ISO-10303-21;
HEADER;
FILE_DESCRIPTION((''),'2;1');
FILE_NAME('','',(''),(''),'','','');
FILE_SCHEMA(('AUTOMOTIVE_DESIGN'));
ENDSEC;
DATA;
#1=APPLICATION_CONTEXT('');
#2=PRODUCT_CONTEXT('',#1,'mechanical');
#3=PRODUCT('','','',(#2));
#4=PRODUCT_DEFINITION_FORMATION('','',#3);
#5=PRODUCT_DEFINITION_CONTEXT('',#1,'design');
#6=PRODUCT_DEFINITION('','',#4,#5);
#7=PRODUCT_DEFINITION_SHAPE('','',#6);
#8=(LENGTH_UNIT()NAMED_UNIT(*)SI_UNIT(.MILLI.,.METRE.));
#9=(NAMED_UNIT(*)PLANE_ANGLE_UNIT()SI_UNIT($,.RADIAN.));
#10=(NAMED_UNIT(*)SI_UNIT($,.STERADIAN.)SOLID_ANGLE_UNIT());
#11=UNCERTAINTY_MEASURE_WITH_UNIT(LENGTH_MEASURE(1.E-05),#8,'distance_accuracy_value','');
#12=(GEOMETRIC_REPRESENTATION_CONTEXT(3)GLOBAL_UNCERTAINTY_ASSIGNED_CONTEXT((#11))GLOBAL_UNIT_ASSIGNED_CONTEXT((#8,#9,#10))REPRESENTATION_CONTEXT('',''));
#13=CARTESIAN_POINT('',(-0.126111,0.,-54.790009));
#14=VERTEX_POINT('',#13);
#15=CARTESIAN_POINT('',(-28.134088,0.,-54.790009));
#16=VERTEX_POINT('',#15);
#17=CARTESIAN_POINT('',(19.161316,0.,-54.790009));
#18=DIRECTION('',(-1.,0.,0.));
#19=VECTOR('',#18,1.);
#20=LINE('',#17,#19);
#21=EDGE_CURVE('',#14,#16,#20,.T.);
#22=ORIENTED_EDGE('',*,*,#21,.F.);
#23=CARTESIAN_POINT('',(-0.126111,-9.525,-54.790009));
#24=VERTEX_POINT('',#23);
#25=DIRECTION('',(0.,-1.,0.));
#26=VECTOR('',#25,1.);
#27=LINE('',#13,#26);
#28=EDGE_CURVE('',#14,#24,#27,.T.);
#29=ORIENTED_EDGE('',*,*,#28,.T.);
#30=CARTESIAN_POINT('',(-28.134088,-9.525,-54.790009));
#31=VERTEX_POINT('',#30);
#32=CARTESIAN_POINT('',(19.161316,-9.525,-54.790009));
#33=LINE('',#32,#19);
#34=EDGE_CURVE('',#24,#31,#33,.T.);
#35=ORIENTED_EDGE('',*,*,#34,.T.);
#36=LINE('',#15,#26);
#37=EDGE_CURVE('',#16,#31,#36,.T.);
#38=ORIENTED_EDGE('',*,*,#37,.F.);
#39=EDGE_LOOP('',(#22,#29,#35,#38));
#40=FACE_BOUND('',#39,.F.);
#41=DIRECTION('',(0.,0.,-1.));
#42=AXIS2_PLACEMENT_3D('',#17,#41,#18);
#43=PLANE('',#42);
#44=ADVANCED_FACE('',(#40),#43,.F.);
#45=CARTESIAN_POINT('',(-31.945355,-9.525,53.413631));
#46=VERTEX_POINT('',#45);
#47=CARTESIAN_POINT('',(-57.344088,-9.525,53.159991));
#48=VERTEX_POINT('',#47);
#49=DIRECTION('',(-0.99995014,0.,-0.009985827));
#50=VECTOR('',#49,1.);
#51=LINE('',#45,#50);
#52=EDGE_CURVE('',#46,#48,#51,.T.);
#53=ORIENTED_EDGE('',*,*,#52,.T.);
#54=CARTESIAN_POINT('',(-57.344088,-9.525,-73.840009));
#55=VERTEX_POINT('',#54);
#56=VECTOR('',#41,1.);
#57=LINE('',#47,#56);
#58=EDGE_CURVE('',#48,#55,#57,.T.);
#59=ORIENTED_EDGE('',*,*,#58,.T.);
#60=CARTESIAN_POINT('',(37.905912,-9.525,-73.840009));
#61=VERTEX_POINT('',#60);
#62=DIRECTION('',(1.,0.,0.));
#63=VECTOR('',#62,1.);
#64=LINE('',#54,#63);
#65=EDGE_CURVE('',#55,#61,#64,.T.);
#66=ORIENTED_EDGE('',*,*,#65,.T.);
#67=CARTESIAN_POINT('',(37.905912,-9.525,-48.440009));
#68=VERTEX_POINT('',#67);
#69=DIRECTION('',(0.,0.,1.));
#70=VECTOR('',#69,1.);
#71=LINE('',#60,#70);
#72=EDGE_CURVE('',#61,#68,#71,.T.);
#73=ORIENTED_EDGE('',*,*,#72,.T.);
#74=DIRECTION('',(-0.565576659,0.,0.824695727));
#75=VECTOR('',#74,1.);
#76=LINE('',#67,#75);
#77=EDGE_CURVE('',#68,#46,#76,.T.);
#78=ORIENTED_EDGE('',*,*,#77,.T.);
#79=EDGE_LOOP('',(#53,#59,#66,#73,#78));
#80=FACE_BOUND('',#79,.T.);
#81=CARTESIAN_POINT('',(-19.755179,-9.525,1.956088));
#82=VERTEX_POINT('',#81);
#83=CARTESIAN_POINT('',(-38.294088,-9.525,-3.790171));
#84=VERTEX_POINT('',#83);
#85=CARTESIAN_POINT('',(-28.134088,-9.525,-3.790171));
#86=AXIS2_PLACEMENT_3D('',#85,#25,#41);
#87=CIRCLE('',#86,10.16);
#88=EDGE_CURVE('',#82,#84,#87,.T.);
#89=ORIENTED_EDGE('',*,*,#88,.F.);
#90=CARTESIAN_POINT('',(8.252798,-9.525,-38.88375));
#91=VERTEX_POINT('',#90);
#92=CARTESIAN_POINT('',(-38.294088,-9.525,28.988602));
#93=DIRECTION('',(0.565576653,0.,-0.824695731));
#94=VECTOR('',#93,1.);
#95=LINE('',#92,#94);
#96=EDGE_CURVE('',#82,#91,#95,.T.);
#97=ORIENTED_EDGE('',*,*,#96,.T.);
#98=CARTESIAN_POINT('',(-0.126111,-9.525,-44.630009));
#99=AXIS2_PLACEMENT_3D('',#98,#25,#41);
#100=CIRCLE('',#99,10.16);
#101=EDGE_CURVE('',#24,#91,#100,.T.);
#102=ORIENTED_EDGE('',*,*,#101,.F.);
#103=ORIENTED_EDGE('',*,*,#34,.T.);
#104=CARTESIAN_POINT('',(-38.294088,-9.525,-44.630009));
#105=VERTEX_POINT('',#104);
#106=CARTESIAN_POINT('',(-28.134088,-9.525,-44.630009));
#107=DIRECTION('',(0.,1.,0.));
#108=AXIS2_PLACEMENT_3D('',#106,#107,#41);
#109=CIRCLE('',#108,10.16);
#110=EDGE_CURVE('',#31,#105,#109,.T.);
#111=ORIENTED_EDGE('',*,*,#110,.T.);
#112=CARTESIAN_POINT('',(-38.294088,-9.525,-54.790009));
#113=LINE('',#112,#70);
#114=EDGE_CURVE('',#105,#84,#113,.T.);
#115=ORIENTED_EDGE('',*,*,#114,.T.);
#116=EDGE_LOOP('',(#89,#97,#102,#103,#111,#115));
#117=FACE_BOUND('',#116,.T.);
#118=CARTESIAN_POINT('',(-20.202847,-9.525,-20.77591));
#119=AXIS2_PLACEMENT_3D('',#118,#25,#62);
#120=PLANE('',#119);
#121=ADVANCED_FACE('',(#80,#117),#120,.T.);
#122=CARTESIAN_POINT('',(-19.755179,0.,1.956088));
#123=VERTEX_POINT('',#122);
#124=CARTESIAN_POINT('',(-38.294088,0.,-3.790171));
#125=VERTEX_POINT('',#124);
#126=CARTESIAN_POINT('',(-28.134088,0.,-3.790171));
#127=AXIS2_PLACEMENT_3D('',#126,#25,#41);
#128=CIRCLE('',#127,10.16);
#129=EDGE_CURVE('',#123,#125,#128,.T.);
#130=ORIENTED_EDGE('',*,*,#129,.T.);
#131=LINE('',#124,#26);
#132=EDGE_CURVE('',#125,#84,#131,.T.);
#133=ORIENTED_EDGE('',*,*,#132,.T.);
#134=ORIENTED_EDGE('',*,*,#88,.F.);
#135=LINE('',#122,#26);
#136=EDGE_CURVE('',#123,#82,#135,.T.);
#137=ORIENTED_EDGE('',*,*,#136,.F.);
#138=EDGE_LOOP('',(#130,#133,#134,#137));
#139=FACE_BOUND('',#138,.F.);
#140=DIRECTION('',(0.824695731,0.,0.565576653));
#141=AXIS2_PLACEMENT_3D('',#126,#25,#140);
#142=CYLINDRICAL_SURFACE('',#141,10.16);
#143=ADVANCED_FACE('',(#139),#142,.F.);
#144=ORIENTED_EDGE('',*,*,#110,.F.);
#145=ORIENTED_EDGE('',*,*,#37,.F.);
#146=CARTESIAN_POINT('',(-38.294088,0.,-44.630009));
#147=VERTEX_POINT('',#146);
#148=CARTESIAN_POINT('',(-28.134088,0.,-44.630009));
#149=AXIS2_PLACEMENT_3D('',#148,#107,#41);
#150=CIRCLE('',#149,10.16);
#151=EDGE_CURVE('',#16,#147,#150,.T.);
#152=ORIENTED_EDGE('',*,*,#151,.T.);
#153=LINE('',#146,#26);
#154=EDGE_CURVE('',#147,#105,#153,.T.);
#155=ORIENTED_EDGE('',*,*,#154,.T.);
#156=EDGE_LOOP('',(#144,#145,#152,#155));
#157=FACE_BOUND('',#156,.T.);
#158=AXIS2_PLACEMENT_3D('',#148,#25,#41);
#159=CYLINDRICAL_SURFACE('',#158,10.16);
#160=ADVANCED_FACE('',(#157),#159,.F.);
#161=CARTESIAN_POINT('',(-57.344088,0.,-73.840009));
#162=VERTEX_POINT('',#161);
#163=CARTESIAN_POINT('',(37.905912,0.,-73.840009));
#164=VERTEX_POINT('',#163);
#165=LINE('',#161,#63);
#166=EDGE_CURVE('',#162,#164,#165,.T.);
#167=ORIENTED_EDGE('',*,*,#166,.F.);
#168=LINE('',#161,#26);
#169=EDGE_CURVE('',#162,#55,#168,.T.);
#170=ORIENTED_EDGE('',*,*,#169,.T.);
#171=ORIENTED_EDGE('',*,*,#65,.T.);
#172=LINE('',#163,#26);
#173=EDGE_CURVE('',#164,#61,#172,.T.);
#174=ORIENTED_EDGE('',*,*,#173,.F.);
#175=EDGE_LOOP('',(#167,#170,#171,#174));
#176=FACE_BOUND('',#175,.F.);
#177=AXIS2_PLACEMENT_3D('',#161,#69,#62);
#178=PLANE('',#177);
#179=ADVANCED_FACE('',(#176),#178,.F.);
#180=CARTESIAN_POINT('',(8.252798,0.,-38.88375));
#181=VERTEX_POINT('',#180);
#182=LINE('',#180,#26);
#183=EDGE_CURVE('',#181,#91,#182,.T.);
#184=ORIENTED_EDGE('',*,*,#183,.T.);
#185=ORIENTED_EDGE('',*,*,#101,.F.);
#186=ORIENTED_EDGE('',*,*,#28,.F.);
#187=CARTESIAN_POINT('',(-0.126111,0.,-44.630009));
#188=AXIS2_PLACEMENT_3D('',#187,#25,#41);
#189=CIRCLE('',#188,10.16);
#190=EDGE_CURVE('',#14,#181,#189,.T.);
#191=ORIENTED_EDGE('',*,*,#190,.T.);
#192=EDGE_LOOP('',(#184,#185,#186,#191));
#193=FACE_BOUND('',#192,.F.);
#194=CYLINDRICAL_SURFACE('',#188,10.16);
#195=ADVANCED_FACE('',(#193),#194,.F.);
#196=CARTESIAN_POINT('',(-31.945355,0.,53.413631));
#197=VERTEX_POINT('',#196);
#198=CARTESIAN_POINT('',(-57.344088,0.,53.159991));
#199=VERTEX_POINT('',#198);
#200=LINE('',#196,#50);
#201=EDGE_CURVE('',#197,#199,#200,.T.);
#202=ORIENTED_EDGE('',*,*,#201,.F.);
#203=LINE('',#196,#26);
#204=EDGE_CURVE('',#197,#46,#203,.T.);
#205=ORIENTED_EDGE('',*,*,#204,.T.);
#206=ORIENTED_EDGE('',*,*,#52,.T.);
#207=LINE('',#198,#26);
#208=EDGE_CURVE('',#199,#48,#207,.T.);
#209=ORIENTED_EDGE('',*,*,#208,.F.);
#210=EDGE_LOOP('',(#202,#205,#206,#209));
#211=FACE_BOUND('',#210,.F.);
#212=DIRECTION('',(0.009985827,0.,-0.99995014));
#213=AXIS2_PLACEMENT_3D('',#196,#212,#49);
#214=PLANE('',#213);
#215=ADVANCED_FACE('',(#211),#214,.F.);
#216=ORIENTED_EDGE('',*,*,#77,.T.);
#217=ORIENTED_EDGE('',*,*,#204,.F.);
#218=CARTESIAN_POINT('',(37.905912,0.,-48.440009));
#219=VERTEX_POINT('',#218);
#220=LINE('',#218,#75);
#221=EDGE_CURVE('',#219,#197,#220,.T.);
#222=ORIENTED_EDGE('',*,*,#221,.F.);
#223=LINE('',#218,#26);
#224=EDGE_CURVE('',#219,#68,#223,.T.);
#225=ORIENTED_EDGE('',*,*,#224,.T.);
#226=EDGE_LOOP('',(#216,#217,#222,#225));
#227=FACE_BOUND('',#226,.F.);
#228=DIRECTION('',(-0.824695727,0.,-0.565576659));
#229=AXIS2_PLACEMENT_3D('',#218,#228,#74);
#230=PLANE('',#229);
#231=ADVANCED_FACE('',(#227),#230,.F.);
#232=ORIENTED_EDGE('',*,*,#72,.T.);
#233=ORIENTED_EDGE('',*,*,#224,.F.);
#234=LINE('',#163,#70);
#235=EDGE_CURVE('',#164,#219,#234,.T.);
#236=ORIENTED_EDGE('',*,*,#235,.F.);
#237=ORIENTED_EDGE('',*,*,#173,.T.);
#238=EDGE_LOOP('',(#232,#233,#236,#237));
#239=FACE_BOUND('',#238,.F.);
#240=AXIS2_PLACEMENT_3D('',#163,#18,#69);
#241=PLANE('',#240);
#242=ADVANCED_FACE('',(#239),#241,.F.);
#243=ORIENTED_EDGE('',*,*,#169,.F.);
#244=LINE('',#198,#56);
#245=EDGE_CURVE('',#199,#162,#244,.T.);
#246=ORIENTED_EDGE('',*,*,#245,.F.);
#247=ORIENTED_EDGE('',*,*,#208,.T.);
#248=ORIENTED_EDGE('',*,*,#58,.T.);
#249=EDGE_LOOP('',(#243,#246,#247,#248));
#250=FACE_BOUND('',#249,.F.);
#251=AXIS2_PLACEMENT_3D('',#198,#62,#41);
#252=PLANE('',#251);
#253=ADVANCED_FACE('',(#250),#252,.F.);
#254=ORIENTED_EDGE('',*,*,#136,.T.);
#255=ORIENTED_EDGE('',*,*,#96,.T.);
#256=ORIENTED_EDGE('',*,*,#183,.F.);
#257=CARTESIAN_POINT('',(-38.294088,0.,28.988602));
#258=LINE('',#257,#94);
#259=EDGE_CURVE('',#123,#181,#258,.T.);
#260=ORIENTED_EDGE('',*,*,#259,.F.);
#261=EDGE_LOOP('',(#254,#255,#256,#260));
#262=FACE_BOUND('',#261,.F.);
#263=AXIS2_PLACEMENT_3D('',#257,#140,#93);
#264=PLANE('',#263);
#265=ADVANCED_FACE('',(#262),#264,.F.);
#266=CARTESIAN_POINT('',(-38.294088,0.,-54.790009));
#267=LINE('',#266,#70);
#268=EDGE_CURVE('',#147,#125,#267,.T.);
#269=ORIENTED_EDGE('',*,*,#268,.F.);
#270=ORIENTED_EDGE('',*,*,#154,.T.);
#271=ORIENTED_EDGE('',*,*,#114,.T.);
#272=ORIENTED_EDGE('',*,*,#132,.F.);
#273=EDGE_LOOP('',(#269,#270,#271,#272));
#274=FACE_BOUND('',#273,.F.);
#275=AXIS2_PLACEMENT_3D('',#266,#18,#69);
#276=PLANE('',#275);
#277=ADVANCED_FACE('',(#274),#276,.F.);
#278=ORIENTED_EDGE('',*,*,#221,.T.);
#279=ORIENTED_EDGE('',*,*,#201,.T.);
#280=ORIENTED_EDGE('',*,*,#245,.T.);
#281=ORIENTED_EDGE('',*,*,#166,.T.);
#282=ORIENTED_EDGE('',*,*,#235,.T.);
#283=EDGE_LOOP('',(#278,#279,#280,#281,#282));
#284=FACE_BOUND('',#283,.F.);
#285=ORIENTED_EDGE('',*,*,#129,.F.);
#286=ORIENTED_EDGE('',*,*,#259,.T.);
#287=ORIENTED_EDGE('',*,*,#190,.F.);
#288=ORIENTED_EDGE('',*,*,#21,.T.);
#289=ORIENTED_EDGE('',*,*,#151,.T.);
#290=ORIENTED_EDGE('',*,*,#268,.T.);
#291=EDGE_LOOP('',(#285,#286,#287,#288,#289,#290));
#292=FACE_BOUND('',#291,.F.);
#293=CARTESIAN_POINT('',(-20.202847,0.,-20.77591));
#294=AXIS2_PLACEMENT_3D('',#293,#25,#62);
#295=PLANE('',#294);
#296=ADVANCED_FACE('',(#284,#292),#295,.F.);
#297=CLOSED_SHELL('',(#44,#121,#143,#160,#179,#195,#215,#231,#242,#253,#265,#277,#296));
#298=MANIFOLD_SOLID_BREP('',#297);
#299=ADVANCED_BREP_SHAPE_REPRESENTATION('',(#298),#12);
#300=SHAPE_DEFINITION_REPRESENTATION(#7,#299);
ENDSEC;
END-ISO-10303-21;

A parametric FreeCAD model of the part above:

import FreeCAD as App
import Part
import Sketcher

V = App.Vector
Q = App.Units.Quantity


def edges_at(feature, points):
    """Names of the edges that pass closest to the given points."""
    edges = feature.Shape.Edges
    near = lambda p: min(range(len(edges)), key=lambda i: edges[i].distToShape(Part.Vertex(*p))[0])
    return sorted({f"Edge{near(p) + 1}" for p in points})

doc = App.newDocument("Part")
body = doc.addObject("PartDesign::Body", "Body")

# Sketch on XZ plane
sketch1 = body.newObject("Sketcher::SketchObject", "Sketch")
sketch1.AttachmentSupport = (doc.getObject("XZ_Plane"), [""])
sketch1.MapMode = "FlatFace"
sketch1.addGeometry([
    Part.LineSegment(V(-32, 53, 0), V(-57, 53, 0)),  # 0
    Part.LineSegment(V(-57, 53, 0), V(-57, -74, 0)),  # 1
    Part.LineSegment(V(-57, -74, 0), V(38, -74, 0)),  # 2
    Part.LineSegment(V(38, -74, 0), V(38, -48, 0)),  # 3
    Part.LineSegment(V(38, -48, 0), V(-32, 53, 0)),  # 4
    Part.LineSegment(V(19, -55, 0), V(-38, -55, 0)),  # 5
    Part.LineSegment(V(-38, -55, 0), V(-38, 29, 0)),  # 6
    Part.LineSegment(V(-38, 29, 0), V(19, -55, 0)),  # 7
], False)
sketch1.addConstraint([
    Sketcher.Constraint("Coincident", 0, 2, 1, 1),
    Sketcher.Constraint("Coincident", 1, 2, 2, 1),
    Sketcher.Constraint("Coincident", 2, 2, 3, 1),
    Sketcher.Constraint("Coincident", 3, 2, 4, 1),
    Sketcher.Constraint("Coincident", 4, 2, 0, 1),
    Sketcher.Constraint("Coincident", 5, 2, 6, 1),
    Sketcher.Constraint("Coincident", 6, 2, 7, 1),
    Sketcher.Constraint("Coincident", 7, 2, 5, 1),
    Sketcher.Constraint("Vertical", 1),
    Sketcher.Constraint("Horizontal", 2),
    Sketcher.Constraint("Vertical", 3),
    Sketcher.Constraint("Horizontal", 5),
    Sketcher.Constraint("Vertical", 6),
    Sketcher.Constraint("Parallel", 4, 7),
    Sketcher.Constraint("DistanceY", 1, 2, 1, 1, Q("5 in")),
    Sketcher.Constraint("DistanceY", 3, 1, 3, 2, Q("1 in")),
    Sketcher.Constraint("Distance", 0, Q("1 in")),
    Sketcher.Constraint("DistanceX", 5, 2, 3, 2, Q("3 in")),
    Sketcher.Constraint("DistanceX", 2, 1, 2, 2, Q("3.75 in")),
    Sketcher.Constraint("DistanceY", 1, 2, 5, 2, Q("0.75 in")),
    Sketcher.Constraint("Distance", 7, Q("3.9994999 in")),
    Sketcher.Constraint("DistanceY", 6, 1, 6, 2, 83.778611),
    Sketcher.Constraint("DistanceY", -1, 1, 6, 2, 28.988602),
    Sketcher.Constraint("DistanceX", 5, 2, -1, 1, 38.294088),
])
pad1 = body.newObject("PartDesign::Pad", "Pad")
pad1.Profile = sketch1
pad1.Length = Q("0.375 in")
doc.recompute()

fillet = body.newObject("PartDesign::Fillet", "Fillet")
fillet.Base = (pad1, edges_at(pad1, [(-38.294, -4.763, -54.79), (19.161, -4.763, -54.79), (-38.294, -4.763, 28.989)]))
fillet.Radius = Q("0.4 in")

doc.recompute()
